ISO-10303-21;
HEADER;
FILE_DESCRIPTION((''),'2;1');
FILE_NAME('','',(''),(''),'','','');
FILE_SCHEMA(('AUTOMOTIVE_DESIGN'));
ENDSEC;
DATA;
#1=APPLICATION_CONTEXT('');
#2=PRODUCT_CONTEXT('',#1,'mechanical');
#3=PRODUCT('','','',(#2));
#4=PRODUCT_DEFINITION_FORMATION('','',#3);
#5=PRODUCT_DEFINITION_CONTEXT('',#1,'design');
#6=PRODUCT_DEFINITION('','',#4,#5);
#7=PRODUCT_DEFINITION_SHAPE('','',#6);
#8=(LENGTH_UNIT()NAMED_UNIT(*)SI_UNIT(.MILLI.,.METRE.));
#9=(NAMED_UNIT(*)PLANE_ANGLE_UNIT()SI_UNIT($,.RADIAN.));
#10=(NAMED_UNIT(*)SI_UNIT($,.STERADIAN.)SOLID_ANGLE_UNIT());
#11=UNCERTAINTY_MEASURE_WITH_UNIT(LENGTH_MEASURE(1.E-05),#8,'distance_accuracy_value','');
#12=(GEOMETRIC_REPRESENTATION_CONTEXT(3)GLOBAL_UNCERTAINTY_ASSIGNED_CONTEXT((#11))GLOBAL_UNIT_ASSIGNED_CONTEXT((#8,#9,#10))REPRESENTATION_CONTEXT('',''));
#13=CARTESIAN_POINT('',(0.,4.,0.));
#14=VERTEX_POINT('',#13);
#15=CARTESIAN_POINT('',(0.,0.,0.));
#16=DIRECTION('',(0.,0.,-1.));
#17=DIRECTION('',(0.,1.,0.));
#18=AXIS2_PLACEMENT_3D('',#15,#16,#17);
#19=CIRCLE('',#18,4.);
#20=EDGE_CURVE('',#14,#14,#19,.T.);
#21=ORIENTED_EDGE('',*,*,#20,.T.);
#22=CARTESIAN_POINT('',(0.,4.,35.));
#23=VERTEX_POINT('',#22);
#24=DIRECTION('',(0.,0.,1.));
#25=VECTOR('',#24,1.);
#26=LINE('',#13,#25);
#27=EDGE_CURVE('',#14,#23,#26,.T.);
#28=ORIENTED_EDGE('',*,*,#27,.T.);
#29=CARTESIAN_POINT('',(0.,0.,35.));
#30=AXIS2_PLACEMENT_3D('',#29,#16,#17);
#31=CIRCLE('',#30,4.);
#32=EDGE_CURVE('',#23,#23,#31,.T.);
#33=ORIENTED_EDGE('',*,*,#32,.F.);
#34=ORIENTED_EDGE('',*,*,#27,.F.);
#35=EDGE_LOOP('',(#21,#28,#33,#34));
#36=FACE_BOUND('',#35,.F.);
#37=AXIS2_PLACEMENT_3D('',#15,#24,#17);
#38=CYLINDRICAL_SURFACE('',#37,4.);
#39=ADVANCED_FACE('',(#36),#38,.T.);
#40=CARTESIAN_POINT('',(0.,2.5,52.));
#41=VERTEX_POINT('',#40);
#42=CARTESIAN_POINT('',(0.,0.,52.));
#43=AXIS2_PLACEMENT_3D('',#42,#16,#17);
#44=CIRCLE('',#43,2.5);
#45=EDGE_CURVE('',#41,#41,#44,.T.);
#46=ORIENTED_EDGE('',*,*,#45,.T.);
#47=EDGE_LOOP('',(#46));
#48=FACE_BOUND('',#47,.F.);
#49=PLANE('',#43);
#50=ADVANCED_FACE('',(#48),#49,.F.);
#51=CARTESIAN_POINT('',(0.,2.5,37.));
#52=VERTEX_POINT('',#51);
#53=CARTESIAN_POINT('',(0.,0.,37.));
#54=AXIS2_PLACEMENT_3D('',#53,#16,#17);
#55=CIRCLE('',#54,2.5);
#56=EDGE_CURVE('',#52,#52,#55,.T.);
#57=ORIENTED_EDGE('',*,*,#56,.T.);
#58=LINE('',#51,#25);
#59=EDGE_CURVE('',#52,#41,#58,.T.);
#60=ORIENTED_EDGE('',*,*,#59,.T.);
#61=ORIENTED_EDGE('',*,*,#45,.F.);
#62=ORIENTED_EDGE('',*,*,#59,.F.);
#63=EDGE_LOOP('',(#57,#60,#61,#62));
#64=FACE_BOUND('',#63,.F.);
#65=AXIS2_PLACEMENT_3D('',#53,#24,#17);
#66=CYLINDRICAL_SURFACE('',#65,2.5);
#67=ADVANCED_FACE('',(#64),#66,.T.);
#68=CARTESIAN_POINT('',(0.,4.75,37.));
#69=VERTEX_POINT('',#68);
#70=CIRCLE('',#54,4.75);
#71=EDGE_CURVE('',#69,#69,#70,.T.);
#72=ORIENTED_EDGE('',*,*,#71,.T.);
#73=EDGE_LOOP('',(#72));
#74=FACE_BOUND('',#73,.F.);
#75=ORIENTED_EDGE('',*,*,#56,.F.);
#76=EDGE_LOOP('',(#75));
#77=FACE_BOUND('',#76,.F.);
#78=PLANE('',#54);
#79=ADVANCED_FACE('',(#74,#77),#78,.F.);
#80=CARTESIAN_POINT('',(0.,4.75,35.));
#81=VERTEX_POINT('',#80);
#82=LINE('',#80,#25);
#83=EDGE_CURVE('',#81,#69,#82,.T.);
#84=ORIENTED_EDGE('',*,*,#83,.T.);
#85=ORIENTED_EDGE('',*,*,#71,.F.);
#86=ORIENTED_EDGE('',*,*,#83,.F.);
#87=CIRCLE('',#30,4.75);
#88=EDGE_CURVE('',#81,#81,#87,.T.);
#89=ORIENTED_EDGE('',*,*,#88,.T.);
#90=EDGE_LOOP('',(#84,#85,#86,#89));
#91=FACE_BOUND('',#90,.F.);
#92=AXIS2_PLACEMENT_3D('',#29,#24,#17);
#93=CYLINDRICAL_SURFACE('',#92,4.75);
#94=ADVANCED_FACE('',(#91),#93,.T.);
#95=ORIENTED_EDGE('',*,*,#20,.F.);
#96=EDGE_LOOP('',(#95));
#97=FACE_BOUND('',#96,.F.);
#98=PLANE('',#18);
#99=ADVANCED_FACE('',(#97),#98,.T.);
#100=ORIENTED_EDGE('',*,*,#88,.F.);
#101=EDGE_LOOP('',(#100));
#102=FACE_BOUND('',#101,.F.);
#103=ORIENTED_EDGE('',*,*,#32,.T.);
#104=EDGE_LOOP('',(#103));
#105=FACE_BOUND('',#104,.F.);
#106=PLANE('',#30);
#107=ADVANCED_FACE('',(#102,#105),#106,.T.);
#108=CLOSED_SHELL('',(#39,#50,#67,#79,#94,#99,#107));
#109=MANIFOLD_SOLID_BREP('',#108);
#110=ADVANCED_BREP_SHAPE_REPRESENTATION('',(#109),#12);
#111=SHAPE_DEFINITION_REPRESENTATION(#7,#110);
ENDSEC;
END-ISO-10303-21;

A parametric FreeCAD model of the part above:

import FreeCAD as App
import Part
import Sketcher

V = App.Vector
Q = App.Units.Quantity

doc = App.newDocument("Part")
body = doc.addObject("PartDesign::Body", "Body")

sketch1 = doc.addObject("Sketcher::SketchObject", "Sketch")
body.addObject(sketch1)
sketch1.AttachmentSupport = (doc.YZ_Plane, [""])
sketch1.MapMode = "FlatFace"
sketch1.addGeometry(Part.LineSegment(V(0, 52, 0), V(0, 0, 0)), False)
sketch1.addGeometry(Part.LineSegment(V(0, 0, 0), V(4, 0, 0)), False)
sketch1.addGeometry(Part.LineSegment(V(4, 0, 0), V(4, 35, 0)), False)
sketch1.addGeometry(Part.LineSegment(V(4, 35, 0), V(4.8, 35, 0)), False)
sketch1.addGeometry(Part.LineSegment(V(4.8, 35, 0), V(4.8, 37, 0)), False)
sketch1.addGeometry(Part.LineSegment(V(4.8, 37, 0), V(2.5, 37, 0)), False)
sketch1.addGeometry(Part.LineSegment(V(2.5, 37, 0), V(2.5, 52, 0)), False)
sketch1.addGeometry(Part.LineSegment(V(2.5, 52, 0), V(0, 52, 0)), False)
sketch1.addConstraint(Sketcher.Constraint("Coincident", 0, 2, 1, 1))
sketch1.addConstraint(Sketcher.Constraint("Coincident", 1, 2, 2, 1))
sketch1.addConstraint(Sketcher.Constraint("Coincident", 2, 2, 3, 1))
sketch1.addConstraint(Sketcher.Constraint("Coincident", 3, 2, 4, 1))
sketch1.addConstraint(Sketcher.Constraint("Coincident", 4, 2, 5, 1))
sketch1.addConstraint(Sketcher.Constraint("Coincident", 5, 2, 6, 1))
sketch1.addConstraint(Sketcher.Constraint("Coincident", 6, 2, 7, 1))
sketch1.addConstraint(Sketcher.Constraint("Coincident", 7, 2, 0, 1))
sketch1.addConstraint(Sketcher.Constraint("Vertical", 0))
sketch1.addConstraint(Sketcher.Constraint("Horizontal", 1))
sketch1.addConstraint(Sketcher.Constraint("Vertical", 2))
sketch1.addConstraint(Sketcher.Constraint("Horizontal", 3))
sketch1.addConstraint(Sketcher.Constraint("Vertical", 4))
sketch1.addConstraint(Sketcher.Constraint("Horizontal", 5))
sketch1.addConstraint(Sketcher.Constraint("Vertical", 6))
sketch1.addConstraint(Sketcher.Constraint("Horizontal", 7))
sketch1.addConstraint(Sketcher.Constraint("Coincident", 0, 2, -1, 1))
sketch1.addConstraint(Sketcher.Constraint("DistanceX", 1, 1, 1, 2, Q("4 mm")))
sketch1.addConstraint(Sketcher.Constraint("DistanceY", 2, 1, 2, 2, Q("35 mm")))
sketch1.addConstraint(Sketcher.Constraint("DistanceY", 4, 1, 4, 2, Q("2 mm")))
sketch1.addConstraint(Sketcher.Constraint("DistanceY", 6, 1, 6, 2, Q("15 mm")))
sketch1.addConstraint(Sketcher.Constraint("DistanceX", 7, 2, 7, 1, Q("2.5 mm")))
sketch1.addConstraint(Sketcher.Constraint("DistanceX", -1, 1, 3, 2, Q("4.75 mm")))
revolution = doc.addObject("PartDesign::Revolution", "Revolution")
body.addObject(revolution)
revolution.Profile = sketch1
revolution.ReferenceAxis = (sketch1, ["V_Axis"])
revolution.Angle = 360

doc.recompute()
